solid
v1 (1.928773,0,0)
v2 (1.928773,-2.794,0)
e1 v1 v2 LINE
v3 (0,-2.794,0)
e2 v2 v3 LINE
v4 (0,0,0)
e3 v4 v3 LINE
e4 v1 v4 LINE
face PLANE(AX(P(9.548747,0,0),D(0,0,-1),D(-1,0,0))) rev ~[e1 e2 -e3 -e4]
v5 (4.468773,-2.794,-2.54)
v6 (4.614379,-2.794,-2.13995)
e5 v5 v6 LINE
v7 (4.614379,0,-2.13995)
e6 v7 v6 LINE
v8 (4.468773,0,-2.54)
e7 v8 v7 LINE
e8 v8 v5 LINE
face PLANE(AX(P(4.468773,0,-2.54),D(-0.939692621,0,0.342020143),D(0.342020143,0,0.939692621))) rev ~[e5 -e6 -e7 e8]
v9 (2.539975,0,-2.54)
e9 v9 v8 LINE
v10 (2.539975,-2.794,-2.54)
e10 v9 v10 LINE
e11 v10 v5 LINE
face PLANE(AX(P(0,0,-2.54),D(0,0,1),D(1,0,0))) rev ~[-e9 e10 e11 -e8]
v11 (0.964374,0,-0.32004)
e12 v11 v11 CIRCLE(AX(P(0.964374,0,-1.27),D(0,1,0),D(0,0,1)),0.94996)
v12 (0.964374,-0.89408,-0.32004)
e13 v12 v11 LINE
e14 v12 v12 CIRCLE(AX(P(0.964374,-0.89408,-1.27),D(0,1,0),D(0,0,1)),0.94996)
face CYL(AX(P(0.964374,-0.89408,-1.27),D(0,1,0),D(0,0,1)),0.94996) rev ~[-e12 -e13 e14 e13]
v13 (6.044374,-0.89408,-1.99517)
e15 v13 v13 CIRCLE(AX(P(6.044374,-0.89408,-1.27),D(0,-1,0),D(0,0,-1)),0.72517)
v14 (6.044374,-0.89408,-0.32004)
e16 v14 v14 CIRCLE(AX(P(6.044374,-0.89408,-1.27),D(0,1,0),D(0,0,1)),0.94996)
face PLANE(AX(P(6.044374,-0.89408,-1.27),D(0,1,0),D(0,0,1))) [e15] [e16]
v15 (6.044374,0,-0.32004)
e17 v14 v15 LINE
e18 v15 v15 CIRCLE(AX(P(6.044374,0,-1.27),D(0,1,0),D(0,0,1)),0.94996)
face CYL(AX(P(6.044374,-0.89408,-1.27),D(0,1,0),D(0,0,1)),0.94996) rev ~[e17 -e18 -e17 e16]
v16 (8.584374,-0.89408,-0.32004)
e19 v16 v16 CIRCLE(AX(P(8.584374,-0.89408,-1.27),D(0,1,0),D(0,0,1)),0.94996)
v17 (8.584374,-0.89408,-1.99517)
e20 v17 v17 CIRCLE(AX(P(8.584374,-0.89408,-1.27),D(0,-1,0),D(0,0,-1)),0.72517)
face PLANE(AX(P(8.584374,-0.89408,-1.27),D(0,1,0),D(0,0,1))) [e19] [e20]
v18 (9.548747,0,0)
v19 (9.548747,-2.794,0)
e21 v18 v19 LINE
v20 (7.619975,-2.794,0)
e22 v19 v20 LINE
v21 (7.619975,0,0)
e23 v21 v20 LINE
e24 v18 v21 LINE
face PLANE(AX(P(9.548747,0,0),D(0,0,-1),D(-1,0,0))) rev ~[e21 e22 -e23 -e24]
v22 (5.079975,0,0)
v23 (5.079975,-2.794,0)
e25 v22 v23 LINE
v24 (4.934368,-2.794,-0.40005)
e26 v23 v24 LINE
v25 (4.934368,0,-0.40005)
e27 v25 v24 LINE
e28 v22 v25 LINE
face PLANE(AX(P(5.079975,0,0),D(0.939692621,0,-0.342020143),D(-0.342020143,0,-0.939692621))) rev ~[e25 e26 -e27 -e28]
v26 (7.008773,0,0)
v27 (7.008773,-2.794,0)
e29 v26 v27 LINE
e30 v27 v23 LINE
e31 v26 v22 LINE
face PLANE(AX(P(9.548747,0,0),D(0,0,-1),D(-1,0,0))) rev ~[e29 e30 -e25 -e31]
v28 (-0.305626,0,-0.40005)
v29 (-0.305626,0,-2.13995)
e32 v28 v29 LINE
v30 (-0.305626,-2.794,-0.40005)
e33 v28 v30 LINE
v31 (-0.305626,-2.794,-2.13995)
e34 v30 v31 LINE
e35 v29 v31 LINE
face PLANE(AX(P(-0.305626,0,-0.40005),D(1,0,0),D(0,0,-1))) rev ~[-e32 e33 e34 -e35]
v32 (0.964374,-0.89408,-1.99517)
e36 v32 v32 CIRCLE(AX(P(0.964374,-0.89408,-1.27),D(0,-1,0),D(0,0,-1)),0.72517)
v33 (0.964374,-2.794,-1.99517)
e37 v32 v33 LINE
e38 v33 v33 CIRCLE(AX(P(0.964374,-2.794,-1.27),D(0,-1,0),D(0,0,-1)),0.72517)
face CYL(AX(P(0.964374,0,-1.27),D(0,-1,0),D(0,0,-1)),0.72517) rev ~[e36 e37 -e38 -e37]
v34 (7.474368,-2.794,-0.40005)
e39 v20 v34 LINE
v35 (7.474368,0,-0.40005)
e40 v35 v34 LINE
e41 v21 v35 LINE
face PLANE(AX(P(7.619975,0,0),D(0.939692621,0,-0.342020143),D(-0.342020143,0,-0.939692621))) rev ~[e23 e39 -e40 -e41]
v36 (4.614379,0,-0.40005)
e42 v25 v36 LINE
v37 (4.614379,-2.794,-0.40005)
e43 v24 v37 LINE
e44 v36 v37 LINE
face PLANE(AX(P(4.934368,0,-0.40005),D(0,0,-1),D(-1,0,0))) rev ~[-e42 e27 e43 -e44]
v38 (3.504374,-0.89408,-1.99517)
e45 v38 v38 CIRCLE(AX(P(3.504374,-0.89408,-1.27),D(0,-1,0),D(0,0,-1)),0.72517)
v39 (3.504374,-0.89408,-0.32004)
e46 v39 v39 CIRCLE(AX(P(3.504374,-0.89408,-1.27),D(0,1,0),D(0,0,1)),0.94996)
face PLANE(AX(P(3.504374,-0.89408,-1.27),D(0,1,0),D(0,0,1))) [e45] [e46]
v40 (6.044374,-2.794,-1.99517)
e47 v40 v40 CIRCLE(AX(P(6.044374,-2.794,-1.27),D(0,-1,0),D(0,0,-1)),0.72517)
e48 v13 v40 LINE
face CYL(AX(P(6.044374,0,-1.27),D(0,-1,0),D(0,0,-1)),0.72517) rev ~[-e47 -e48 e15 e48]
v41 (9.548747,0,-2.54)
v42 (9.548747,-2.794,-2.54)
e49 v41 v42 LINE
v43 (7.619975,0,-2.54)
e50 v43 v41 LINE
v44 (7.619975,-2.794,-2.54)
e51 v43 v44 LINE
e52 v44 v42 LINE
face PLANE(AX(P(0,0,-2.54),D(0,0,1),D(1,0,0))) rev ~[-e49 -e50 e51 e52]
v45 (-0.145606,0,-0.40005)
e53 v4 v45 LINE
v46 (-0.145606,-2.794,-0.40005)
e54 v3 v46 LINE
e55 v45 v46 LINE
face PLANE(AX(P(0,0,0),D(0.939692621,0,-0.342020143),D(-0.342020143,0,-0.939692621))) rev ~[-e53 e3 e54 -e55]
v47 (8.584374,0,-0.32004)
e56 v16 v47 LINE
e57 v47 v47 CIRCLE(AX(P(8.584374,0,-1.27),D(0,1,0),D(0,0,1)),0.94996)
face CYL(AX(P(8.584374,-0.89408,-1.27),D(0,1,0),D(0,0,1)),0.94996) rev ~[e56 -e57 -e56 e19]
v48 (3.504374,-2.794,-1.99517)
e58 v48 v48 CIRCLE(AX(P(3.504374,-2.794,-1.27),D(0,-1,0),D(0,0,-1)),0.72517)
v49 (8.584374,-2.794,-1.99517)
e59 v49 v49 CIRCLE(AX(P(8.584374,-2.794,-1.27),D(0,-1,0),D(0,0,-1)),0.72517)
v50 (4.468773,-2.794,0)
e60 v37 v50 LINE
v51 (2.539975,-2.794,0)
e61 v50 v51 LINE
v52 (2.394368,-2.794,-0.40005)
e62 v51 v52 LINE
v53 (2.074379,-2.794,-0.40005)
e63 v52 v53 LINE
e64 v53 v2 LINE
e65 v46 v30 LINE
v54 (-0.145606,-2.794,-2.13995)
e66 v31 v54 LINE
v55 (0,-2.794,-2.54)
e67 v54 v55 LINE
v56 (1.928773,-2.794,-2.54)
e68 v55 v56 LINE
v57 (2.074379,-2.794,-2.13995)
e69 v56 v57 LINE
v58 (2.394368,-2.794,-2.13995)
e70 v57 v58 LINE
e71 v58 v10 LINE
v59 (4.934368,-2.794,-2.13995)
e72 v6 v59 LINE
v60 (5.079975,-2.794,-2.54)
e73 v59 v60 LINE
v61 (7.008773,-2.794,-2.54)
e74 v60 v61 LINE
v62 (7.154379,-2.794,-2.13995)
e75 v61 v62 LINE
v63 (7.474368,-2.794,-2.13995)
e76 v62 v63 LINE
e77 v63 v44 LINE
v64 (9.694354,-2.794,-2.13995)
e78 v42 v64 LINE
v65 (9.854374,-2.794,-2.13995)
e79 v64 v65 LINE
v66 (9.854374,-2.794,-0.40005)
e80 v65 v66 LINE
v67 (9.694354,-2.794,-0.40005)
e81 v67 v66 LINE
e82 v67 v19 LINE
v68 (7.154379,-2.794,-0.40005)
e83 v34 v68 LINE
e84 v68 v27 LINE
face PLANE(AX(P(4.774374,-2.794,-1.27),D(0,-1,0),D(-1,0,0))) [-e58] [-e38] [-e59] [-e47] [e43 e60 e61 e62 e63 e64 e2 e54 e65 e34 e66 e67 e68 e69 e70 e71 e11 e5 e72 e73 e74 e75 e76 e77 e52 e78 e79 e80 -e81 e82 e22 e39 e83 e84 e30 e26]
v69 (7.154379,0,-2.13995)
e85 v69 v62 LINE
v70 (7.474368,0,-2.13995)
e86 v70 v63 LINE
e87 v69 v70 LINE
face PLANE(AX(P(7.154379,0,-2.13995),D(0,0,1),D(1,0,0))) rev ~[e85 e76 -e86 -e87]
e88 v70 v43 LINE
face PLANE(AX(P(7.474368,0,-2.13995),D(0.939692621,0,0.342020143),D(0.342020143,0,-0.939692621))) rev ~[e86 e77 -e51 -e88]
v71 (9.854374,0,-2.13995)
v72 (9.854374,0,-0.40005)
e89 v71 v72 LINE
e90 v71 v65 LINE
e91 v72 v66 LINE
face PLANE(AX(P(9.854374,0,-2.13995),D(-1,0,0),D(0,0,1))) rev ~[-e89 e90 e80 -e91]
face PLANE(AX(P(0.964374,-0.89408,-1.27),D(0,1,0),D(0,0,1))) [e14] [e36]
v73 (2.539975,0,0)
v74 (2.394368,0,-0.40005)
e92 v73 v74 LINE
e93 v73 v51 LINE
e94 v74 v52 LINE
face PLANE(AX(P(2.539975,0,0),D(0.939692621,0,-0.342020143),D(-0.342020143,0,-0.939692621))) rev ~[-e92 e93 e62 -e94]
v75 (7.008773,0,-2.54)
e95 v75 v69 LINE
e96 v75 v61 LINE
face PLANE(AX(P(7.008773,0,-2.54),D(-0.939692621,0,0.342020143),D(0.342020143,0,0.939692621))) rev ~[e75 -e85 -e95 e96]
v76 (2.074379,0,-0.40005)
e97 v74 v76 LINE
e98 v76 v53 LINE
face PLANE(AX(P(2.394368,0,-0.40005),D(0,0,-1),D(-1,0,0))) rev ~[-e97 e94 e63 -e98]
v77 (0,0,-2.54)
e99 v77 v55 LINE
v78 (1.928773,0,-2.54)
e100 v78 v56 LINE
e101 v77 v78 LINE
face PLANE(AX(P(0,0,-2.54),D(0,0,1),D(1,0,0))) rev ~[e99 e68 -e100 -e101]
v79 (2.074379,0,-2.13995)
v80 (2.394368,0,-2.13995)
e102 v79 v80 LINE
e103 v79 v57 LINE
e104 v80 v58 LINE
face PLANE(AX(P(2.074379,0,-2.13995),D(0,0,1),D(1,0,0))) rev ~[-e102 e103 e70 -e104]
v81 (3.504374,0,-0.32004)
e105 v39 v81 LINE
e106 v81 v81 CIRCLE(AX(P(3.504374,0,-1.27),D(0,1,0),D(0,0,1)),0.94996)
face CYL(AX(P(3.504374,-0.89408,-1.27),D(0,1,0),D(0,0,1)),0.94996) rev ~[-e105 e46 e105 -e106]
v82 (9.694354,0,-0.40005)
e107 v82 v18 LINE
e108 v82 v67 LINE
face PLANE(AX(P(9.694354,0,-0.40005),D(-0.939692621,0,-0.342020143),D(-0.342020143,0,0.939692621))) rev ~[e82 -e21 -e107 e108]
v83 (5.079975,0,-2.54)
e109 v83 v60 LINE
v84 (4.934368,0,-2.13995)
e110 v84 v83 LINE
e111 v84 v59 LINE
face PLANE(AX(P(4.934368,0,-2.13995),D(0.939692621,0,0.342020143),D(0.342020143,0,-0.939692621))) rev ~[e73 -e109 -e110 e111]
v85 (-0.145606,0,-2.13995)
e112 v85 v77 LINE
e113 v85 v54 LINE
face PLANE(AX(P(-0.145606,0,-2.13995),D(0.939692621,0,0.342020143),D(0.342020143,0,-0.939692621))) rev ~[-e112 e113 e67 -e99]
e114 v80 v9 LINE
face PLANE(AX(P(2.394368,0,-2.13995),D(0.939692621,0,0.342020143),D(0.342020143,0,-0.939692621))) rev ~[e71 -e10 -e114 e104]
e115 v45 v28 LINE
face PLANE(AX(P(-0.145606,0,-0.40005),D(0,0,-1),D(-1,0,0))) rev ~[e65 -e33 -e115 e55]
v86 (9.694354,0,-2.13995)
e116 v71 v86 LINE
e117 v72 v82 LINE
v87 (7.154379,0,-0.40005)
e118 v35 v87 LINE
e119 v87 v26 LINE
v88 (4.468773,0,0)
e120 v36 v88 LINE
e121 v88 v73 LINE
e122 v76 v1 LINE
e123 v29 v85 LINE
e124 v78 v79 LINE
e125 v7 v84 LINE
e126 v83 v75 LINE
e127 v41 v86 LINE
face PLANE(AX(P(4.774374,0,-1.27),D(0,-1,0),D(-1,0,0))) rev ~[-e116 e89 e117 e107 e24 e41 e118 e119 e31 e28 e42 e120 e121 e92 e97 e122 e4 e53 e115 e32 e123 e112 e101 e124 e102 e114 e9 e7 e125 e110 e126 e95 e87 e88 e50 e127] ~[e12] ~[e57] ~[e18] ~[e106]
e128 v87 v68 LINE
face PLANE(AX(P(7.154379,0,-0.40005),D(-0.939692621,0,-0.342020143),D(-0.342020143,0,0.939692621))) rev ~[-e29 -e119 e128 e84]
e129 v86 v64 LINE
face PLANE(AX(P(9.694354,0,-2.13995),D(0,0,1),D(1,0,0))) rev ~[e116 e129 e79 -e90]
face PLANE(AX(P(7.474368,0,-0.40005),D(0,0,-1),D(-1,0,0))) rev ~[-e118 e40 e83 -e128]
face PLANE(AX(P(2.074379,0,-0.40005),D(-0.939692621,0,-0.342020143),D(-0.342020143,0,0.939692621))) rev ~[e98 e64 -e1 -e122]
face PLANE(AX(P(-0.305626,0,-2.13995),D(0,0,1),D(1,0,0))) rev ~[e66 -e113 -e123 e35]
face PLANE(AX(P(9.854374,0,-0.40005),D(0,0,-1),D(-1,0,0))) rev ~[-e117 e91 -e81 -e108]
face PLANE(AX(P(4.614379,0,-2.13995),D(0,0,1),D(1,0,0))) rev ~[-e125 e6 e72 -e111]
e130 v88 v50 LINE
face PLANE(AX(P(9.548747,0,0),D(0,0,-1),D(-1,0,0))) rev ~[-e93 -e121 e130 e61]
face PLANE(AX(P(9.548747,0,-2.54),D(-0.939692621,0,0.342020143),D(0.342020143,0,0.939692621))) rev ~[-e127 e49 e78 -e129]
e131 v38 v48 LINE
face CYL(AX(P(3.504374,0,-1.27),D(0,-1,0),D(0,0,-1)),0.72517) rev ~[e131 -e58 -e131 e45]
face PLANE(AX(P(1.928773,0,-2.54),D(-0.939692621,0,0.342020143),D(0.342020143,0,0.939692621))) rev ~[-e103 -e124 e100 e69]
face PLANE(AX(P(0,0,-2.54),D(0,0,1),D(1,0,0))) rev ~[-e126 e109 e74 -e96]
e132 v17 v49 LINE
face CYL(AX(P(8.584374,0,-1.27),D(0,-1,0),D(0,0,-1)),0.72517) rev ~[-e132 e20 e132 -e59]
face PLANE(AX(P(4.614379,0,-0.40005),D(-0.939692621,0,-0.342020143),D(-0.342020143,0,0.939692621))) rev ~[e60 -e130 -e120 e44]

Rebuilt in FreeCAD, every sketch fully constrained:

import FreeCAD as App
import Part
import Sketcher
from FreeCAD import Vector
Q = App.Units.Quantity

doc = App.newDocument("Part")
body = doc.addObject("PartDesign::Body", "Body")

# Sketch on XZ plane
sketch1 = body.newObject("Sketcher::SketchObject", "Sketch")
sketch1.AttachmentSupport = (doc.getObject("XZ_Plane"), [""])
sketch1.MapMode = "FlatFace"
sketch1.addGeometry(Part.LineSegment(Vector(9.69, -0.4, 0), Vector(9.85, -0.4, 0)), False)
sketch1.addGeometry(Part.LineSegment(Vector(9.85, -0.4, 0), Vector(9.85, -2.14, 0)), False)
sketch1.addGeometry(Part.LineSegment(Vector(9.85, -2.14, 0), Vector(9.69, -2.14, 0)), False)
sketch1.addGeometry(Part.LineSegment(Vector(9.69, -2.14, 0), Vector(9.55, -2.54, 0)), False)
sketch1.addGeometry(Part.LineSegment(Vector(9.55, -2.54, 0), Vector(0, -2.54, 0)), False)
sketch1.addGeometry(Part.LineSegment(Vector(0, -2.54, 0), Vector(-0.15, -2.14, 0)), False)
sketch1.addGeometry(Part.LineSegment(Vector(-0.15, -2.14, 0), Vector(-0.31, -2.14, 0)), False)
sketch1.addGeometry(Part.LineSegment(Vector(-0.31, -2.14, 0), Vector(-0.31, -0.4, 0)), False)
sketch1.addGeometry(Part.LineSegment(Vector(-0.31, -0.4, 0), Vector(-0.15, -0.4, 0)), False)
sketch1.addGeometry(Part.LineSegment(Vector(-0.15, -0.4, 0), Vector(0, 0, 0)), False)
sketch1.addGeometry(Part.LineSegment(Vector(0, 0, 0), Vector(9.55, 0, 0)), False)
sketch1.addGeometry(Part.LineSegment(Vector(9.55, 0, 0), Vector(9.69, -0.4, 0)), False)
sketch1.addConstraint(Sketcher.Constraint("Coincident", 0, 2, 1, 1))
sketch1.addConstraint(Sketcher.Constraint("Coincident", 1, 2, 2, 1))
sketch1.addConstraint(Sketcher.Constraint("Coincident", 2, 2, 3, 1))
sketch1.addConstraint(Sketcher.Constraint("Coincident", 3, 2, 4, 1))
sketch1.addConstraint(Sketcher.Constraint("Coincident", 4, 2, 5, 1))
sketch1.addConstraint(Sketcher.Constraint("Coincident", 5, 2, 6, 1))
sketch1.addConstraint(Sketcher.Constraint("Coincident", 6, 2, 7, 1))
sketch1.addConstraint(Sketcher.Constraint("Coincident", 7, 2, 8, 1))
sketch1.addConstraint(Sketcher.Constraint("Coincident", 8, 2, 9, 1))
sketch1.addConstraint(Sketcher.Constraint("Coincident", 9, 2, 10, 1))
sketch1.addConstraint(Sketcher.Constraint("Coincident", 10, 2, 11, 1))
sketch1.addConstraint(Sketcher.Constraint("Coincident", 11, 2, 0, 1))
sketch1.addConstraint(Sketcher.Constraint("Horizontal", 0))
sketch1.addConstraint(Sketcher.Constraint("Vertical", 1))
sketch1.addConstraint(Sketcher.Constraint("Horizontal", 2))
sketch1.addConstraint(Sketcher.Constraint("Horizontal", 4))
sketch1.addConstraint(Sketcher.Constraint("Horizontal", 6))
sketch1.addConstraint(Sketcher.Constraint("Vertical", 7))
sketch1.addConstraint(Sketcher.Constraint("Horizontal", 8))
sketch1.addConstraint(Sketcher.Constraint("Horizontal", 10))
sketch1.addConstraint(Sketcher.Constraint("Coincident", 9, 2, -1, 1))
sketch1.addConstraint(Sketcher.Constraint("PointOnObject", 4, 2, -2))
sketch1.addConstraint(Sketcher.Constraint("Parallel", 3, 9))
sketch1.addConstraint(Sketcher.Constraint("Parallel", 5, 11))
sketch1.addConstraint(Sketcher.Constraint("Horizontal", 2, 2, 5, 2))
sketch1.addConstraint(Sketcher.Constraint("Horizontal", 0, 2, 7, 2))
sketch1.addConstraint(Sketcher.Constraint("Vertical", 5, 2, 8, 2))
sketch1.addConstraint(Sketcher.Constraint("Vertical", 3, 2, 10, 2))
sketch1.addConstraint(Sketcher.Constraint("Vertical", 2, 2, 11, 2))
sketch1.addConstraint(Sketcher.Constraint("Equal", 2, 6))
sketch1.addConstraint(Sketcher.Constraint("Angle", 3, Q("-110 deg")))
sketch1.addConstraint(Sketcher.Constraint("DistanceY", 3, 2, -1, 1, Q("0.1 in")))
sketch1.addConstraint(Sketcher.Constraint("DistanceX", 6, 2, 1, 2, Q("0.4 in")))
sketch1.addConstraint(Sketcher.Constraint("DistanceX", 0, 1, 0, 2, Q("0.0063 in")))
sketch1.addConstraint(Sketcher.Constraint("DistanceY", 1, 2, 1, 1, Q("0.0685 in")))
pad1 = body.newObject("PartDesign::Pad", "Pad")
pad1.Profile = sketch1
pad1.Length = Q("0.11 in")

# Sketch on XZ plane
sketch2 = body.newObject("Sketcher::SketchObject", "Sketch001")
sketch2.AttachmentSupport = (doc.getObject("XZ_Plane"), [""])
sketch2.MapMode = "FlatFace"
sketch2.addGeometry(Part.Circle(Vector(1, -1.3, 0), Vector(0, 0, 1), 0.7), False)
sketch2.addConstraint(Sketcher.Constraint("Diameter", 0, Q("0.0571 in")))
sketch2.addConstraint(Sketcher.Constraint("DistanceY", 0, 3, -1, 1, Q("0.05 in")))
sketch2.addConstraint(Sketcher.Constraint("DistanceX", -1, 1, 0, 3, 0.964374))
doc.recompute()
hole = body.newObject("PartDesign::Hole", "Hole")
hole.Profile = sketch2
hole.ThreadType = "None"
hole.Diameter = Q("0.0571 in")
hole.DepthType = "ThroughAll"
hole.HoleCutType = "Counterbore"
hole.HoleCutDiameter = Q("0.0748 in")
hole.HoleCutDepth = Q("0.0352 in")
hole.Reversed = True

# Sketch on XZ plane
sketch3 = body.newObject("Sketcher::SketchObject", "Sketch002")
sketch3.AttachmentSupport = (doc.getObject("XZ_Plane"), [""])
sketch3.MapMode = "FlatFace"
sketch3.addGeometry(Part.LineSegment(Vector(1.93, 0, 0), Vector(2.54, 0, 0)), False)
sketch3.addGeometry(Part.LineSegment(Vector(2.54, 0, 0), Vector(2.39, -0.4, 0)), False)
sketch3.addGeometry(Part.LineSegment(Vector(2.39, -0.4, 0), Vector(2.07, -0.4, 0)), False)
sketch3.addGeometry(Part.LineSegment(Vector(2.07, -0.4, 0), Vector(1.93, 0, 0)), False)
sketch3.addGeometry(Part.LineSegment(Vector(2.07, -2.14, 0), Vector(2.39, -2.14, 0)), False)
sketch3.addGeometry(Part.LineSegment(Vector(2.39, -2.14, 0), Vector(2.54, -2.54, 0)), False)
sketch3.addGeometry(Part.LineSegment(Vector(2.54, -2.54, 0), Vector(1.93, -2.54, 0)), False)
sketch3.addGeometry(Part.LineSegment(Vector(1.93, -2.54, 0), Vector(2.07, -2.14, 0)), False)
sketch3.addConstraint(Sketcher.Constraint("Coincident", 0, 2, 1, 1))
sketch3.addConstraint(Sketcher.Constraint("Coincident", 1, 2, 2, 1))
sketch3.addConstraint(Sketcher.Constraint("Coincident", 2, 2, 3, 1))
sketch3.addConstraint(Sketcher.Constraint("Coincident", 3, 2, 0, 1))
sketch3.addConstraint(Sketcher.Constraint("Coincident", 4, 2, 5, 1))
sketch3.addConstraint(Sketcher.Constraint("Coincident", 5, 2, 6, 1))
sketch3.addConstraint(Sketcher.Constraint("Coincident", 6, 2, 7, 1))
sketch3.addConstraint(Sketcher.Constraint("Coincident", 7, 2, 4, 1))
sketch3.addConstraint(Sketcher.Constraint("Horizontal", 0))
sketch3.addConstraint(Sketcher.Constraint("Horizontal", 2))
sketch3.addConstraint(Sketcher.Constraint("Horizontal", 4))
sketch3.addConstraint(Sketcher.Constraint("Horizontal", 6))
sketch3.addConstraint(Sketcher.Constraint("PointOnObject", 0, 2, -1))
sketch3.addConstraint(Sketcher.Constraint("Parallel", 3, 5))
sketch3.addConstraint(Sketcher.Constraint("Parallel", 1, 7))
sketch3.addConstraint(Sketcher.Constraint("Vertical", 1, 2, 4, 2))
sketch3.addConstraint(Sketcher.Constraint("Vertical", 0, 2, 5, 2))
sketch3.addConstraint(Sketcher.Constraint("Vertical", 3, 2, 6, 2))
sketch3.addConstraint(Sketcher.Constraint("Vertical", 2, 2, 7, 2))
sketch3.addConstraint(Sketcher.Constraint("Angle", 1, Q("-110 deg")))
sketch3.addConstraint(Sketcher.Constraint("DistanceY", 5, 2, -1, 1, Q("0.1 in")))
sketch3.addConstraint(Sketcher.Constraint("DistanceX", 0, 1, 0, 2, 0.611202))
sketch3.addConstraint(Sketcher.Constraint("DistanceY", 4, 2, 1, 2, Q("0.0685 in")))
sketch3.addConstraint(Sketcher.Constraint("DistanceX", -1, 1, 1, 2, 2.394368))
pocket1 = body.newObject("PartDesign::Pocket", "Pocket")
pocket1.Profile = sketch3
pocket1.Length = Q("0.11 in")
pocket1.Reversed = True
doc.recompute()

linearpattern = body.newObject("PartDesign::LinearPattern", "LinearPattern")
linearpattern.Originals = [hole]
linearpattern.Direction = (doc.getObject("X_Axis"), [""])
linearpattern.Mode = "offset"
linearpattern.Offset = Q("0.1 in")
linearpattern.Occurrences = 4
body.Tip = linearpattern
doc.recompute()

linearpattern2 = body.newObject("PartDesign::LinearPattern", "LinearPattern001")
linearpattern2.Originals = [pocket1]
linearpattern2.Direction = (doc.getObject("X_Axis"), [""])
linearpattern2.Mode = "offset"
linearpattern2.Offset = Q("0.1 in")
linearpattern2.Occurrences = 63
body.Tip = linearpattern2

doc.recompute()
